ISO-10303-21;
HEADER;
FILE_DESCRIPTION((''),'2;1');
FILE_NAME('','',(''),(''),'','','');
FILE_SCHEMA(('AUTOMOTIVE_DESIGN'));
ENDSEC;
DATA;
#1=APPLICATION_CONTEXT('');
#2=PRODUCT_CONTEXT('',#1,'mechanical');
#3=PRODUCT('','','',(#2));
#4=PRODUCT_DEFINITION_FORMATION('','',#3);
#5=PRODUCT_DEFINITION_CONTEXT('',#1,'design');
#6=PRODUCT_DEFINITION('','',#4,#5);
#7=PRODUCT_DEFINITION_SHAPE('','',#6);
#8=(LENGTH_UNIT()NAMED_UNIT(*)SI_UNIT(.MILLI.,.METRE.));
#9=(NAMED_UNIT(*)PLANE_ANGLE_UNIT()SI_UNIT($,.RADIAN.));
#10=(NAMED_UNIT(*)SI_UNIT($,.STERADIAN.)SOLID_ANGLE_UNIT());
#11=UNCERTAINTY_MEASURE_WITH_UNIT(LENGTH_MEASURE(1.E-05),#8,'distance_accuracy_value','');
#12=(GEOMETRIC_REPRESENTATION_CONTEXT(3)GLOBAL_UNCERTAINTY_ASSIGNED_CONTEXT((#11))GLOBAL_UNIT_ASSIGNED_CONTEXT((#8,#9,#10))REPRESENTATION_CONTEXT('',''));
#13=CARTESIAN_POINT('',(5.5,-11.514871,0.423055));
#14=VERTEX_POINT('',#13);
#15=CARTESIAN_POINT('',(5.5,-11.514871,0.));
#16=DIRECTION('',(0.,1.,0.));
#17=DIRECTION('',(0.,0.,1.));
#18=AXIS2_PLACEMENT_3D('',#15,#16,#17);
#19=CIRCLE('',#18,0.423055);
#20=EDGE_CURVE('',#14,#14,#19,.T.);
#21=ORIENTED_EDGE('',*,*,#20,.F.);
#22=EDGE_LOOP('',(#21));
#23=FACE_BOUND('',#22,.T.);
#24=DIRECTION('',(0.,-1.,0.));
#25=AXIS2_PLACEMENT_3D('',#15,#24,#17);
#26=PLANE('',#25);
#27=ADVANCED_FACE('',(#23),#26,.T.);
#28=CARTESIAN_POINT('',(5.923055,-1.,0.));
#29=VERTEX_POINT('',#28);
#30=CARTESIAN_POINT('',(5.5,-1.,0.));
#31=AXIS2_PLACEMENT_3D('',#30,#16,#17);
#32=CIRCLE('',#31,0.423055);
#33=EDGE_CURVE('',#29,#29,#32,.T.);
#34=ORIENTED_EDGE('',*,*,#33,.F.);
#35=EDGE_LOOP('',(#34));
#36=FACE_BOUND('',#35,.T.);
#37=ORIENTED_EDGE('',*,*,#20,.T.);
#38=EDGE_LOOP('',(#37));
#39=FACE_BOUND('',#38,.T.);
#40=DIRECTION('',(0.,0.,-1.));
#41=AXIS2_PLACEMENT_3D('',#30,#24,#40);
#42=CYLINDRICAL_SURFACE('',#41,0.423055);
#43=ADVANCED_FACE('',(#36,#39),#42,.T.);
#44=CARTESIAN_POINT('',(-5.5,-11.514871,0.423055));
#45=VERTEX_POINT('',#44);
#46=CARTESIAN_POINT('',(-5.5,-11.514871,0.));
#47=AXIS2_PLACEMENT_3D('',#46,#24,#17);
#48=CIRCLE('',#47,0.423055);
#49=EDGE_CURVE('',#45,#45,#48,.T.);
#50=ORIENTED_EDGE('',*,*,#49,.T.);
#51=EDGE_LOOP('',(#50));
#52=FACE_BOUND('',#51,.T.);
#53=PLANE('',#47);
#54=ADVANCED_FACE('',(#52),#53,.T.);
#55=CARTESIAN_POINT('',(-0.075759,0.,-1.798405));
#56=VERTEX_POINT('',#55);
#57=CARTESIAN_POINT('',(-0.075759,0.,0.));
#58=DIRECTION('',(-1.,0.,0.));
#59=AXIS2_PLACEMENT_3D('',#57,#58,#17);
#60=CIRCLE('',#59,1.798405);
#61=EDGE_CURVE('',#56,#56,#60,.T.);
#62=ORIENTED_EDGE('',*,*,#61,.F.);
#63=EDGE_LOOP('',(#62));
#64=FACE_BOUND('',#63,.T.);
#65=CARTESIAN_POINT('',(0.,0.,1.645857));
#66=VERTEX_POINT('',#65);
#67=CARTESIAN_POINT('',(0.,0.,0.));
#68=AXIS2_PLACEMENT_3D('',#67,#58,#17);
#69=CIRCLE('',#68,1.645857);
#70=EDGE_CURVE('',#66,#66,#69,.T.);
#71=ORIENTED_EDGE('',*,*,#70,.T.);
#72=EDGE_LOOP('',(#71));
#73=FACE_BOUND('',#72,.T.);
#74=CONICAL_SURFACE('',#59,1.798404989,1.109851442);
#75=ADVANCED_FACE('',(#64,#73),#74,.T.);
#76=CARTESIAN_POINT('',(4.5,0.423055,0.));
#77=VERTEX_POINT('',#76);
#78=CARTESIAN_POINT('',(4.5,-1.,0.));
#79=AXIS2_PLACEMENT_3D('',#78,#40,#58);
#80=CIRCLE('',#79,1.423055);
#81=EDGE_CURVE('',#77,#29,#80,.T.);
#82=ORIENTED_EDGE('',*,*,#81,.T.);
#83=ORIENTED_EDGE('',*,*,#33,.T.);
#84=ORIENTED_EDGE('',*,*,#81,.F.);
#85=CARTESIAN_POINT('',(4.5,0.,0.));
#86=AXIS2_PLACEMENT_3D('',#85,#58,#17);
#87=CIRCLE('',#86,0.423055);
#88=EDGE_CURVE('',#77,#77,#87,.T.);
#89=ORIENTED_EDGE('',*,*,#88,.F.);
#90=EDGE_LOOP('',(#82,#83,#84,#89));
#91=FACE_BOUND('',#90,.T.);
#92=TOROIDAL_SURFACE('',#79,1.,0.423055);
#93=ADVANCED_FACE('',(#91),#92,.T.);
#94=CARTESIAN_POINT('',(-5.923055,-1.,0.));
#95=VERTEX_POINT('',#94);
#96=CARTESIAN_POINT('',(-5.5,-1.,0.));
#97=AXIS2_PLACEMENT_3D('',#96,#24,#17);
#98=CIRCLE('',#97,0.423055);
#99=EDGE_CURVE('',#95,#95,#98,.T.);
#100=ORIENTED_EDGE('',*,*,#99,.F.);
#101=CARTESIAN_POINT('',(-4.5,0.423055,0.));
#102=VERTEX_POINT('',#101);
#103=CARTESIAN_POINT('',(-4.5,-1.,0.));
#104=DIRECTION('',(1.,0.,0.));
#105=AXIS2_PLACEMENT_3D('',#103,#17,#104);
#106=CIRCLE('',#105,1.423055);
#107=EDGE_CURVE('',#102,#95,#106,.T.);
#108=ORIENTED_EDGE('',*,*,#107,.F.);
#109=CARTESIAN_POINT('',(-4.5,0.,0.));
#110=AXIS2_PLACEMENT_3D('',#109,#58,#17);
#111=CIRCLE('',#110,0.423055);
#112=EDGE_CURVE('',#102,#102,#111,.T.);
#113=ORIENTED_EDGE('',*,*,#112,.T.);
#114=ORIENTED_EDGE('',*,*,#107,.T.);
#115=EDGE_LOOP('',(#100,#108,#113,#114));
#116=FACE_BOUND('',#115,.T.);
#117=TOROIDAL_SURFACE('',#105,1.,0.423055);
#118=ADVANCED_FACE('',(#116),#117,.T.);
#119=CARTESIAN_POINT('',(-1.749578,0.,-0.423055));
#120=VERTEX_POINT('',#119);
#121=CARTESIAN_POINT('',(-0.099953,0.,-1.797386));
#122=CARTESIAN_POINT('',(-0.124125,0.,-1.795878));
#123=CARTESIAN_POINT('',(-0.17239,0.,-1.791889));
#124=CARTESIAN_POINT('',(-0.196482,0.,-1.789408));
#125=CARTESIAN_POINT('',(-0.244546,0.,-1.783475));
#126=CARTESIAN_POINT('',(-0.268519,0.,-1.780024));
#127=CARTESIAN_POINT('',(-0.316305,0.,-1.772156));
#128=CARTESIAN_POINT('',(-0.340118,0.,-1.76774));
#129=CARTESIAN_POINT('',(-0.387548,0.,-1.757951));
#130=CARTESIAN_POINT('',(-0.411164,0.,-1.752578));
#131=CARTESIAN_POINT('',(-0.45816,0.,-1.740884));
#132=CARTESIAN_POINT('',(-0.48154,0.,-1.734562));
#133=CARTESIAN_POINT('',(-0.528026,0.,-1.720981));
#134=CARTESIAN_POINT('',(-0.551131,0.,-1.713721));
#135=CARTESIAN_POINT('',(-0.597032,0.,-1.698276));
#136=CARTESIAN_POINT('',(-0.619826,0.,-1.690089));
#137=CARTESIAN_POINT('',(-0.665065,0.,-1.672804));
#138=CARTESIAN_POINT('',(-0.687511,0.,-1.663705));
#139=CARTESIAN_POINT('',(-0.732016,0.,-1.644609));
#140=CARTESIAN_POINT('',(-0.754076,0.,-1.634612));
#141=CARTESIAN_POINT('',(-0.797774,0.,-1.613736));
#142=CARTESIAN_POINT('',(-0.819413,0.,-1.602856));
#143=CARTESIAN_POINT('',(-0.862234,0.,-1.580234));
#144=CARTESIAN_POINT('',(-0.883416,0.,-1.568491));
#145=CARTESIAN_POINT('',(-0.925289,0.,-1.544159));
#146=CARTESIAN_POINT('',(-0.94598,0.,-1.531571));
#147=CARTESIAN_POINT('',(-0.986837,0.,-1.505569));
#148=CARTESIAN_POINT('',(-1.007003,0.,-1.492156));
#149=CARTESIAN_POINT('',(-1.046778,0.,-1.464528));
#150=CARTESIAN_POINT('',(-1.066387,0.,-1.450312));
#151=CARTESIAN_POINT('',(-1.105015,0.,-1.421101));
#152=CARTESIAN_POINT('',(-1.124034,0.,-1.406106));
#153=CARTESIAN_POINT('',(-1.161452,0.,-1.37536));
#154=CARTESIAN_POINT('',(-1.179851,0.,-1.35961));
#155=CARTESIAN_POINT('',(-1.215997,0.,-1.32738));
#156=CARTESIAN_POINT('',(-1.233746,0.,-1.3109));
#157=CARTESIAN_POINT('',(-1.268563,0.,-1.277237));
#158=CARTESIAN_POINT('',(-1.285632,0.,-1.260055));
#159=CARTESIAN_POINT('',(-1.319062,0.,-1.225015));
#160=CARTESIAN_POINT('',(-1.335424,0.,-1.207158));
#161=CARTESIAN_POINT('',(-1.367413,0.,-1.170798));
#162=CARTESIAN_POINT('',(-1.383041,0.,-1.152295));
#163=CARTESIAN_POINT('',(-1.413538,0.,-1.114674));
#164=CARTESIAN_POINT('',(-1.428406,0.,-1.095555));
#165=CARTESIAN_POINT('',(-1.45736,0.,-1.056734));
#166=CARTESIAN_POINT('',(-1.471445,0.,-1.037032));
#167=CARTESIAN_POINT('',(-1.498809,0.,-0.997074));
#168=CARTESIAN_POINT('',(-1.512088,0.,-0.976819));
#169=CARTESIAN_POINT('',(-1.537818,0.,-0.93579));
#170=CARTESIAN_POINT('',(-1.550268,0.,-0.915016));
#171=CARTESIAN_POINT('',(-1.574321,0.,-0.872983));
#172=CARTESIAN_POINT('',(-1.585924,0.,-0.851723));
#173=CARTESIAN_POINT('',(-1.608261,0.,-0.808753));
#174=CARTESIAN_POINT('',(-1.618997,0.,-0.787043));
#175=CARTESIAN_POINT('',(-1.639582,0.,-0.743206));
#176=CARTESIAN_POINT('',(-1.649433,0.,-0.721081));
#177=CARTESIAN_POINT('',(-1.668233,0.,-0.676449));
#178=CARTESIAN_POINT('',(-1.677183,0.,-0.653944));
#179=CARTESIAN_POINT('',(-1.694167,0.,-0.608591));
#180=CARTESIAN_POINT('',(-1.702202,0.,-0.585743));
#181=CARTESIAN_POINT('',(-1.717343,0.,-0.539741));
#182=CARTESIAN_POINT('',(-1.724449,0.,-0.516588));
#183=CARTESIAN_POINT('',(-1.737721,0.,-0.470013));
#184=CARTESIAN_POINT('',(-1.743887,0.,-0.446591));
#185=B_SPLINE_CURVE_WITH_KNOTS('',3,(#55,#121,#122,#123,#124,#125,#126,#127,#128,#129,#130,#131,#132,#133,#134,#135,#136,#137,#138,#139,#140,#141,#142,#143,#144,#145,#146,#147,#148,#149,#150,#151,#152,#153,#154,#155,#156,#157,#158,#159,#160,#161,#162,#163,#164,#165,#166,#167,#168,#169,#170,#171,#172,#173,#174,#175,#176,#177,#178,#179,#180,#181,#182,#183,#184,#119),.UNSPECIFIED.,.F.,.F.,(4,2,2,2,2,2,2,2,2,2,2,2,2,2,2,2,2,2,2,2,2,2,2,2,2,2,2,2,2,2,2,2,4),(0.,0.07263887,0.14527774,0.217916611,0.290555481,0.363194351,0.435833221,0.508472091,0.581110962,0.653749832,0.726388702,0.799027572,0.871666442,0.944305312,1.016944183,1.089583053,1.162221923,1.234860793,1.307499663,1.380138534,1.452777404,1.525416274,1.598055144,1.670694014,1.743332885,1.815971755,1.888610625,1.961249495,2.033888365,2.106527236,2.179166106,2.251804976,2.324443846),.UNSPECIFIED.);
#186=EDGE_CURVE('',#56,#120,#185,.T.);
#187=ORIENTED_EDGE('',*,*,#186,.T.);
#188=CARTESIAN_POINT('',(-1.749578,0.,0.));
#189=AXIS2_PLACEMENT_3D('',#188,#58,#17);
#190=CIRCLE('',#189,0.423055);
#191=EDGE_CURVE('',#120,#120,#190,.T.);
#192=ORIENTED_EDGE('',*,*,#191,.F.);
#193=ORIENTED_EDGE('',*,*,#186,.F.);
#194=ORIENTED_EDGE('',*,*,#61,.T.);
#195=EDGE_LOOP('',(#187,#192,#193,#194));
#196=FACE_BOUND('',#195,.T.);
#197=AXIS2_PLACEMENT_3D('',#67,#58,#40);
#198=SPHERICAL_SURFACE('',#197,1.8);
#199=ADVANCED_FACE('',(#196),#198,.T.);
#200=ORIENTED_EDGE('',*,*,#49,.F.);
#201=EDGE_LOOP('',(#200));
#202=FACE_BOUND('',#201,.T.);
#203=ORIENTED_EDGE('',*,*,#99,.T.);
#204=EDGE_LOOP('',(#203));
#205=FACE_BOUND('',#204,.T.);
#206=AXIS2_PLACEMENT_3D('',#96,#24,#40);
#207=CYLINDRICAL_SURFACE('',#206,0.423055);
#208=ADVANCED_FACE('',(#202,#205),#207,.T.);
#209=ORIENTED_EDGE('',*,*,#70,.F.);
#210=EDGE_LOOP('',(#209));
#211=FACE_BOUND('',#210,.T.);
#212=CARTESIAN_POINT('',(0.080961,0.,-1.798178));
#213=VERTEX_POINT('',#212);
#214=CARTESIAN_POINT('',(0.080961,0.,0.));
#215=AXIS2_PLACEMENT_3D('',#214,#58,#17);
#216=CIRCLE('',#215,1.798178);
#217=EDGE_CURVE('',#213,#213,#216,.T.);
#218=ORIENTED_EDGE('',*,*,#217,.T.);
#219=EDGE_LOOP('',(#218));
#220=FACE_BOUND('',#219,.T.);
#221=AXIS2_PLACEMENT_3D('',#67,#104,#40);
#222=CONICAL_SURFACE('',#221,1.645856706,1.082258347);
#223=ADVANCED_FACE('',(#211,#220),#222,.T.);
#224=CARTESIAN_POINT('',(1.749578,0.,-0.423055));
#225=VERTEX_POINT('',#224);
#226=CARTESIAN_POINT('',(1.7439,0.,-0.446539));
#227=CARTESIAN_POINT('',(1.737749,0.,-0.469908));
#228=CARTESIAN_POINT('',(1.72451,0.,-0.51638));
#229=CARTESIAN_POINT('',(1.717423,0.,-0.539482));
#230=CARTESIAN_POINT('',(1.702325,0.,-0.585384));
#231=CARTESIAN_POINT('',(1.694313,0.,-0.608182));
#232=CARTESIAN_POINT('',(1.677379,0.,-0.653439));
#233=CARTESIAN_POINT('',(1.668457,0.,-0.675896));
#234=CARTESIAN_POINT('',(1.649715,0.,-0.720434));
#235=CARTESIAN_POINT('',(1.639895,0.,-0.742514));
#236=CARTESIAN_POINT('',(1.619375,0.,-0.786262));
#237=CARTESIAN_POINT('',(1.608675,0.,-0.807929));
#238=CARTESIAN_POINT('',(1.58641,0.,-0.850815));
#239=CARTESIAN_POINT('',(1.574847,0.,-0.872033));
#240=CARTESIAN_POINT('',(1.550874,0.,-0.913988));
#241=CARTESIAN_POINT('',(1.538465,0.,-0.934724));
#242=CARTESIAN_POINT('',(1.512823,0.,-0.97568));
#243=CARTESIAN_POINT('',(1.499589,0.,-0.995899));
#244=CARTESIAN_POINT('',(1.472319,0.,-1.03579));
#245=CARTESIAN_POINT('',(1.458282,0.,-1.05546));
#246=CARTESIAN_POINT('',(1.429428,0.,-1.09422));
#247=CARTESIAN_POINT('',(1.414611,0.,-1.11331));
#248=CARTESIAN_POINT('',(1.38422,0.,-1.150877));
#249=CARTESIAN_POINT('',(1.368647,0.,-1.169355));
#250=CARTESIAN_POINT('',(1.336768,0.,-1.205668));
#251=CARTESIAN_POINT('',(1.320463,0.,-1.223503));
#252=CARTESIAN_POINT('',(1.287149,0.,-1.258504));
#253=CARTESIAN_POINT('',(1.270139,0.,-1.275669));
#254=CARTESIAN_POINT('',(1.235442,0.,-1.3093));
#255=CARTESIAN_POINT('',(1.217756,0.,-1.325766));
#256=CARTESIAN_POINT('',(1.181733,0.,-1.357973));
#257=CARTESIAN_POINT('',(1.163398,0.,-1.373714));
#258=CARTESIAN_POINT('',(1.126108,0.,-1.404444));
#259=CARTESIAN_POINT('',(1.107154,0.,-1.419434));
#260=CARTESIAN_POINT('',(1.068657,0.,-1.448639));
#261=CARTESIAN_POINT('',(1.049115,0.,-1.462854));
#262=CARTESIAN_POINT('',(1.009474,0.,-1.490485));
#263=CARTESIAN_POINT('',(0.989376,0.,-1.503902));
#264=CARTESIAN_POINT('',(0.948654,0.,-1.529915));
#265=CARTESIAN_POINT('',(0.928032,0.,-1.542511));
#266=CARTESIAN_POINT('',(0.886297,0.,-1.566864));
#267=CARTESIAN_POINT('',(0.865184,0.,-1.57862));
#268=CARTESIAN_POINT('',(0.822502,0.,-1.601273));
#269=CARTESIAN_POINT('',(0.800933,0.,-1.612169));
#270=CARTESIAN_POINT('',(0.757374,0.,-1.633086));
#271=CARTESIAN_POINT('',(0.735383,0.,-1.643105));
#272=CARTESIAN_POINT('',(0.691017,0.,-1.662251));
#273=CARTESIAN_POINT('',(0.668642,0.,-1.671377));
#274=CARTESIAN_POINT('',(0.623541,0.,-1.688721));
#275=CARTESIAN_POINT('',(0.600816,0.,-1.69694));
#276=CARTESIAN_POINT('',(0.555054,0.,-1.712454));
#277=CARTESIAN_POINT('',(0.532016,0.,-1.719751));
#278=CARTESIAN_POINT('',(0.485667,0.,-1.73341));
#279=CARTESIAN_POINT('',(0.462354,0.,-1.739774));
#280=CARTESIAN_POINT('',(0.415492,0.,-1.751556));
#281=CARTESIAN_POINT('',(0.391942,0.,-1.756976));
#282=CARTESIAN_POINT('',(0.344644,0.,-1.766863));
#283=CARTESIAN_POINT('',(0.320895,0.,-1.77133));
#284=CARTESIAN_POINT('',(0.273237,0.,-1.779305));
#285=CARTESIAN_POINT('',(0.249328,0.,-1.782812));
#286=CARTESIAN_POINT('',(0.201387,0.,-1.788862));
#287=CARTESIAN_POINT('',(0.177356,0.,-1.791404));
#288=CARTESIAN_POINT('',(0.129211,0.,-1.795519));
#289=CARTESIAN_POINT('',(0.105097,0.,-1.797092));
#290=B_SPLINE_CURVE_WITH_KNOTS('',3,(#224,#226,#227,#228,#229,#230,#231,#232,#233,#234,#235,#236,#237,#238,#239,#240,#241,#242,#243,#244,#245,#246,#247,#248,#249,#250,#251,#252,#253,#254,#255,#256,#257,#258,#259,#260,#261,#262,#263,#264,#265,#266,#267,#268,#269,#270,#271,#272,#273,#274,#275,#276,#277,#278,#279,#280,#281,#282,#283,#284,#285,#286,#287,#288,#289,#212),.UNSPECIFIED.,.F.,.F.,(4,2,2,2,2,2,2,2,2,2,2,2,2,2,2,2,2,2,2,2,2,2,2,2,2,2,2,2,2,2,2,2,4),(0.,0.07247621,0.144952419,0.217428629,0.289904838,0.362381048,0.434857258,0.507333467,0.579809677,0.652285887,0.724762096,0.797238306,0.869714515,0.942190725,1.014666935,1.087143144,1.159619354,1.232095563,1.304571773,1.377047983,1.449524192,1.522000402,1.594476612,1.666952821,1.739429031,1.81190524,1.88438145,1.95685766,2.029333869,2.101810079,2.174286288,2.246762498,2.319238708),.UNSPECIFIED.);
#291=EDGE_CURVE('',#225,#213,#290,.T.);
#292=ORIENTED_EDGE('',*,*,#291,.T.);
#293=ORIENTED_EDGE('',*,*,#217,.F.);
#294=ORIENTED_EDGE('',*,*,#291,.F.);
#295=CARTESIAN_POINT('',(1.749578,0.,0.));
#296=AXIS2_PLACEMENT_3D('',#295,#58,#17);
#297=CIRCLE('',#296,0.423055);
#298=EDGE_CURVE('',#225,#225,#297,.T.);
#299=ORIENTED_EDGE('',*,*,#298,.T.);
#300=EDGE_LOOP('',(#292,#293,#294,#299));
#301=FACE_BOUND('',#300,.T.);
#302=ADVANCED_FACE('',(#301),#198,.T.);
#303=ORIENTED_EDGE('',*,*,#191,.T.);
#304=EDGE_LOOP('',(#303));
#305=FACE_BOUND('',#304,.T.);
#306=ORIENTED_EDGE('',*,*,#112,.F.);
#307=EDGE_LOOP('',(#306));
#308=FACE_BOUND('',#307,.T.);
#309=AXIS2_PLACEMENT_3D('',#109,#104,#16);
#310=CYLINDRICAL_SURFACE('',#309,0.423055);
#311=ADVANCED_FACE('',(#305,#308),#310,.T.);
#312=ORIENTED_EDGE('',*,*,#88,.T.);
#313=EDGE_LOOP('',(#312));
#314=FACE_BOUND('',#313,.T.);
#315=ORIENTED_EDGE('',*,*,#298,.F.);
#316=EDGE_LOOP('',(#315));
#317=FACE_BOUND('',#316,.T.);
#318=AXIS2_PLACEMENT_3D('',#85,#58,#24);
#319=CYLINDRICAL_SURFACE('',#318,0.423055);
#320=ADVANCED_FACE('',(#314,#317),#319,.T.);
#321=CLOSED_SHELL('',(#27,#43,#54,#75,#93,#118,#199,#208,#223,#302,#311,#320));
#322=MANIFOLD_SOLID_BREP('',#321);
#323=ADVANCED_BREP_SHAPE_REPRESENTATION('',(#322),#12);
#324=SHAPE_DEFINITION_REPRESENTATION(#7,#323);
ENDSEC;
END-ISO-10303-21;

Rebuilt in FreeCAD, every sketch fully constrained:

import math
import FreeCAD as App
import Part
import Sketcher
Q = App.Units.Quantity

doc = App.newDocument("Part")
body = doc.addObject("PartDesign::Body", "Body")

# Sketch on XZ plane
sketch1 = body.newObject("Sketcher::SketchObject", "Sketch")
sketch1.AttachmentSupport = (doc.getObject("XZ_Plane"), [""])
sketch1.MapMode = "FlatFace"
sketch1.addGeometry(Part.LineSegment(App.Vector(-1.75, -0.42, 0), App.Vector(-1.75, 0, 0)), False)
sketch1.addGeometry(Part.LineSegment(App.Vector(-1.75, 0, 0), App.Vector(1.75, 0, 0)), False)
sketch1.addGeometry(Part.LineSegment(App.Vector(1.75, 0, 0), App.Vector(1.75, -0.42, 0)), False)
sketch1.addGeometry(Part.ArcOfCircle(Part.Circle(App.Vector(0, 0, 0), App.Vector(0, 0, 1), 1.8), math.radians(-87), math.radians(-14)), False)
sketch1.addGeometry(Part.LineSegment(App.Vector(0.08, -1.8, 0), App.Vector(0, -1.65, 0)), False)
sketch1.addGeometry(Part.LineSegment(App.Vector(0, -1.65, 0), App.Vector(-0.08, -1.8, 0)), False)
sketch1.addGeometry(Part.ArcOfCircle(Part.Circle(App.Vector(0, 0, 0), App.Vector(0, 0, 1), 1.8), math.radians(-166), math.radians(-92)), False)
sketch1.addConstraint(Sketcher.Constraint("Coincident", 0, 2, 1, 1))
sketch1.addConstraint(Sketcher.Constraint("Coincident", 1, 2, 2, 1))
sketch1.addConstraint(Sketcher.Constraint("Coincident", 2, 2, 3, 2))
sketch1.addConstraint(Sketcher.Constraint("Coincident", 3, 1, 4, 1))
sketch1.addConstraint(Sketcher.Constraint("Coincident", 4, 2, 5, 1))
sketch1.addConstraint(Sketcher.Constraint("Coincident", 5, 2, 6, 2))
sketch1.addConstraint(Sketcher.Constraint("Coincident", 6, 1, 0, 1))
sketch1.addConstraint(Sketcher.Constraint("Vertical", 0))
sketch1.addConstraint(Sketcher.Constraint("Horizontal", 1))
sketch1.addConstraint(Sketcher.Constraint("Vertical", 2))
sketch1.addConstraint(Sketcher.Constraint("Coincident", 3, 3, -1, 1))
sketch1.addConstraint(Sketcher.Constraint("Coincident", 6, 3, -1, 1))
sketch1.addConstraint(Sketcher.Constraint("Equal", 3, 6))
sketch1.addConstraint(Sketcher.Constraint("Symmetric", 0, 2, 1, 2, -1, 1))
sketch1.addConstraint(Sketcher.Constraint("PointOnObject", 4, 2, -2))
sketch1.addConstraint(Sketcher.Constraint("Radius", 3, Q("1.8 mm")))
sketch1.addConstraint(Sketcher.Constraint("Distance", 4, Q("0.172501 mm")))
sketch1.addConstraint(Sketcher.Constraint("DistanceY", 4, 2, 2, 2, Q("1.222802 mm")))
sketch1.addConstraint(Sketcher.Constraint("DistanceX", 1, 1, 1, 2, Q("3.499157 mm")))
sketch1.addConstraint(Sketcher.Constraint("DistanceX", 5, 2, -1, 1, Q("0.075759 mm")))
revolution = body.newObject("PartDesign::Revolution", "Revolution")
revolution.Profile = sketch1
revolution.ReferenceAxis = (sketch1, ["H_Axis"])
revolution.Angle = 360

# Sketch on YZ plane
sketch2 = body.newObject("Sketcher::SketchObject", "Sketch001")
sketch2.AttachmentSupport = (doc.getObject("YZ_Plane"), [""])
sketch2.MapMode = "FlatFace"
sketch2.AttachmentOffset = App.Placement(App.Vector(0, 0, -1.749578), App.Rotation())
sketch2.addGeometry(Part.Circle(App.Vector(0, 0, 0), App.Vector(0, 0, 1), 0.42), False)
sketch2.addConstraint(Sketcher.Constraint("Coincident", 0, 3, -1, 1))
sketch2.addConstraint(Sketcher.Constraint("Diameter", 0, Q("0.84611 mm")))

# Sketch on XY plane
sketch3 = body.newObject("Sketcher::SketchObject", "Sketch002")
sketch3.AttachmentSupport = (doc.getObject("XY_Plane"), [""])
sketch3.MapMode = "FlatFace"
sketch3.addGeometry(Part.LineSegment(App.Vector(0, 0, 0), App.Vector(-4.5, 0, 0)), False)
sketch3.addGeometry(Part.ArcOfCircle(Part.Circle(App.Vector(-4.5, -1, 0), App.Vector(0, 0, 1), 1), math.radians(90), math.radians(180)), False)
sketch3.addGeometry(Part.LineSegment(App.Vector(-5.5, -1, 0), App.Vector(-5.5, -11.5, 0)), False)
sketch3.addConstraint(Sketcher.Constraint("Tangent", 0, 2, 1, 1))
sketch3.addConstraint(Sketcher.Constraint("Tangent", 1, 2, 2, 1))
sketch3.addConstraint(Sketcher.Constraint("Horizontal", 0))
sketch3.addConstraint(Sketcher.Constraint("Vertical", 2))
sketch3.addConstraint(Sketcher.Constraint("Coincident", 0, 1, -1, 1))
sketch3.addConstraint(Sketcher.Constraint("Radius", 1, Q("1 mm")))
sketch3.addConstraint(Sketcher.Constraint("DistanceX", 0, 2, 0, 1, Q("4.5 mm")))
sketch3.addConstraint(Sketcher.Constraint("DistanceY", 2, 2, 2, 1, Q("10.514871 mm")))
doc.recompute()

additivepipe = body.newObject("PartDesign::AdditivePipe", "AdditivePipe")
additivepipe.Profile = sketch2
additivepipe.Spine = (sketch3, ["Edge1", "Edge2", "Edge3"])
doc.recompute()

mirrored = body.newObject("PartDesign::Mirrored", "Mirrored")
mirrored.Originals = [additivepipe]
mirrored.MirrorPlane = (doc.getObject("YZ_Plane"), [""])
body.Tip = mirrored

doc.recompute()
